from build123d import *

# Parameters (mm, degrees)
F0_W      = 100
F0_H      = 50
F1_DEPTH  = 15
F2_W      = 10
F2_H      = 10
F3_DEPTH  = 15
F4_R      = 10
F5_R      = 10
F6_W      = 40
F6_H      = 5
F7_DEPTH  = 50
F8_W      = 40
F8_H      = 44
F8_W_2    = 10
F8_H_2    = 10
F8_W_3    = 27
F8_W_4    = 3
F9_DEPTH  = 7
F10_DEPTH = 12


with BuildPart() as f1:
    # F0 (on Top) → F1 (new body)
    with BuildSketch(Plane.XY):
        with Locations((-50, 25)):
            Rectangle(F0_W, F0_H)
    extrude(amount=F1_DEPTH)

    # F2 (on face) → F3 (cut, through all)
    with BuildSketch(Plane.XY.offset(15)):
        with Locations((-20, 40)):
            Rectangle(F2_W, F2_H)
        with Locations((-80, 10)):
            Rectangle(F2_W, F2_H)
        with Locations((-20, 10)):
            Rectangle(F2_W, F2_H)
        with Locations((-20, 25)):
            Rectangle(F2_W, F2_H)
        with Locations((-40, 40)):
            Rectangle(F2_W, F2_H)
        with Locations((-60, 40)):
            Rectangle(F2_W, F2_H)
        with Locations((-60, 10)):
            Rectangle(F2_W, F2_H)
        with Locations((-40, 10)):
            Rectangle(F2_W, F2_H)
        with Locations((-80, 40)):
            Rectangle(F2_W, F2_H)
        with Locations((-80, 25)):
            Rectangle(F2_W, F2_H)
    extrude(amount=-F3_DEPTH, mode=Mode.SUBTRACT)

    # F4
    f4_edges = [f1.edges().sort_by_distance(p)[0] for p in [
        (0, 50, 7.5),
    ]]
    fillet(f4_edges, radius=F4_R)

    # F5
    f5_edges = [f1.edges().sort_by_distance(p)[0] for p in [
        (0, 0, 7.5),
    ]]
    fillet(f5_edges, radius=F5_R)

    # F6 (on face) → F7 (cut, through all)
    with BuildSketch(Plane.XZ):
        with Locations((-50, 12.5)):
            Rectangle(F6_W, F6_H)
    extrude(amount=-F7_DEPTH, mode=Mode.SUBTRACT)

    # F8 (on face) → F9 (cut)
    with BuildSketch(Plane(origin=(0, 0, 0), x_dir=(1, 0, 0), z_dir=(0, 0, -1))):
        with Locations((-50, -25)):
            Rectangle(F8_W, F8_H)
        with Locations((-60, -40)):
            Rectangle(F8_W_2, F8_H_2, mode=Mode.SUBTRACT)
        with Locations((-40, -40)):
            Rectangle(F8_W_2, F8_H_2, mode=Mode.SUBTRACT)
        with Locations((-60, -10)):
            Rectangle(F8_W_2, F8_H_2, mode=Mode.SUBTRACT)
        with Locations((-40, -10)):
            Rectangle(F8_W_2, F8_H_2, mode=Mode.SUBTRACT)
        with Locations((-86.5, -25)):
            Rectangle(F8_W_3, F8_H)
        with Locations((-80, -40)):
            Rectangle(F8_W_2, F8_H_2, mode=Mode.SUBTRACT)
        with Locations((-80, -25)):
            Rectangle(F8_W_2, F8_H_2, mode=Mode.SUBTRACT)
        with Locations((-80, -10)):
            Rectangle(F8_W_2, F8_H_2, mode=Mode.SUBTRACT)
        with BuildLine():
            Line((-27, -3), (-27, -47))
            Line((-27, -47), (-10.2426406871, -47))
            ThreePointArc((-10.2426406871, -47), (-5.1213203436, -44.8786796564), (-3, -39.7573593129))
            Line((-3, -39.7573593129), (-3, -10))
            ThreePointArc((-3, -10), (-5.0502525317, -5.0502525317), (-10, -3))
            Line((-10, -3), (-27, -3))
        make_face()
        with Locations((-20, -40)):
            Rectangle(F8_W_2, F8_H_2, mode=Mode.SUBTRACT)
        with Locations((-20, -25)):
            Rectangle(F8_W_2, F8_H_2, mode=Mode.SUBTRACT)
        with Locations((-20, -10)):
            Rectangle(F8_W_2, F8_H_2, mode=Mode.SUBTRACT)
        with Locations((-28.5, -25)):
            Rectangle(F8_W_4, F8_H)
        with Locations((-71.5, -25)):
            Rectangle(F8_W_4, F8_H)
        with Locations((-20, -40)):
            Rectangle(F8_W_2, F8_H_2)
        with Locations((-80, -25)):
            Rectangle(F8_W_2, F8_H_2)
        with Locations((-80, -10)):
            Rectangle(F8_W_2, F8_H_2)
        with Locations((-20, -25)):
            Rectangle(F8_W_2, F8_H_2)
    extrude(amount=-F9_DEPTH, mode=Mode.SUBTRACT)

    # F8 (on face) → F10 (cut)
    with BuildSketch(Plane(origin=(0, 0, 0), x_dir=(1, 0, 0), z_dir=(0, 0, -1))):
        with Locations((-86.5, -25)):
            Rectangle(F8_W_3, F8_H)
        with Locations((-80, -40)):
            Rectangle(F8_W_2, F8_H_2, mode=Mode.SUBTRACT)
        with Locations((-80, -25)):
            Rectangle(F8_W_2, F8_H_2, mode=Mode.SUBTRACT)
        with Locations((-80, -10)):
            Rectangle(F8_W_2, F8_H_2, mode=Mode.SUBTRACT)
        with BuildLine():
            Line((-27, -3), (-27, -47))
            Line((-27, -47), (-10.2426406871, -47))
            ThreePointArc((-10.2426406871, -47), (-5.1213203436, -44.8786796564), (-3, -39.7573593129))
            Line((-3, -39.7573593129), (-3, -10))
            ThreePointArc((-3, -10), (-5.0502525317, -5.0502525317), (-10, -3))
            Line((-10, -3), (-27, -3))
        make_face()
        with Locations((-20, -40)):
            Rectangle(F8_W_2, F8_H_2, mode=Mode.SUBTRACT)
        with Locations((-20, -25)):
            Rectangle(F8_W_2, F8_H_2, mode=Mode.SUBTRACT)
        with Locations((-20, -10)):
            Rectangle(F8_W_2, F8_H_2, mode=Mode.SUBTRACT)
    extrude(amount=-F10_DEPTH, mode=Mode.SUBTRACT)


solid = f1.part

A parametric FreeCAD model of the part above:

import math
import FreeCAD as App
import Part
import Sketcher

V = App.Vector
Q = App.Units.Quantity


def edges_at(feature, points):
    """Names of the edges that pass closest to the given points."""
    edges = feature.Shape.Edges
    near = lambda p: min(range(len(edges)), key=lambda i: edges[i].distToShape(Part.Vertex(*p))[0])
    return sorted({f"Edge{near(p) + 1}" for p in points})


def add_polygon(sketch, points):
    """Adds a closed chain of lines whose ends are joined by coincident constraints."""
    first, n = sketch.GeometryCount, len(points)
    for a, b in zip(points, points[1:] + points[:1]):
        sketch.addGeometry(Part.LineSegment(App.Vector(*a, 0), App.Vector(*b, 0)), False)
    for i in range(n):
        sketch.addConstraint(Sketcher.Constraint("Coincident", first + i, 2, first + (i + 1) % n, 1))

doc = App.newDocument("Part")
body = doc.addObject("PartDesign::Body", "Body")

# Sketch on XY plane
sketch1 = doc.addObject("Sketcher::SketchObject", "Sketch")
body.addObject(sketch1)
sketch1.AttachmentSupport = (doc.XY_Plane, [""])
sketch1.MapMode = "FlatFace"
add_polygon(sketch1, [(-100, 50), (-100, 0), (0, 0), (0, 50)])  # lines 0-3
sketch1.addConstraint(Sketcher.Constraint("Vertical", 0))
sketch1.addConstraint(Sketcher.Constraint("Horizontal", 1))
sketch1.addConstraint(Sketcher.Constraint("Vertical", 2))
sketch1.addConstraint(Sketcher.Constraint("Horizontal", 3))
sketch1.addConstraint(Sketcher.Constraint("Coincident", 1, 2, -1, 1))
sketch1.addConstraint(Sketcher.Constraint("DistanceX", 1, 1, 1, 2, Q("100 mm")))
sketch1.addConstraint(Sketcher.Constraint("DistanceY", 0, 2, 0, 1, Q("50 mm")))
pad1 = doc.addObject("PartDesign::Pad", "Pad")
body.addObject(pad1)
pad1.Profile = sketch1
pad1.Length = 15

# Sketch on XY plane
sketch2 = doc.addObject("Sketcher::SketchObject", "Sketch001")
body.addObject(sketch2)
sketch2.AttachmentSupport = (doc.XY_Plane, [""])
sketch2.MapMode = "FlatFace"
sketch2.AttachmentOffset = App.Placement(V(0, 0, 15), App.Rotation())
add_polygon(sketch2, [(-25, 45), (-25, 35), (-15, 35), (-15, 45)])  # lines 0-3
add_polygon(sketch2, [(-85, 15), (-85, 5), (-75, 5), (-75, 15)])  # lines 4-7
add_polygon(sketch2, [(-25, 15), (-25, 5), (-15, 5), (-15, 15)])  # lines 8-11
add_polygon(sketch2, [(-25, 30), (-25, 20), (-15, 20), (-15, 30)])  # lines 12-15
add_polygon(sketch2, [(-45, 45), (-45, 35), (-35, 35), (-35, 45)])  # lines 16-19
add_polygon(sketch2, [(-65, 45), (-65, 35), (-55, 35), (-55, 45)])  # lines 20-23
add_polygon(sketch2, [(-65, 15), (-65, 5), (-55, 5), (-55, 15)])  # lines 24-27
add_polygon(sketch2, [(-45, 15), (-45, 5), (-35, 5), (-35, 15)])  # lines 28-31
add_polygon(sketch2, [(-85, 45), (-85, 35), (-75, 35), (-75, 45)])  # lines 32-35
add_polygon(sketch2, [(-85, 30), (-85, 20), (-75, 20), (-75, 30)])  # lines 36-39
sketch2.addConstraint(Sketcher.Constraint("Vertical", 0))
sketch2.addConstraint(Sketcher.Constraint("Horizontal", 1))
sketch2.addConstraint(Sketcher.Constraint("Vertical", 2))
sketch2.addConstraint(Sketcher.Constraint("Horizontal", 3))
sketch2.addConstraint(Sketcher.Constraint("Vertical", 4))
sketch2.addConstraint(Sketcher.Constraint("Horizontal", 5))
sketch2.addConstraint(Sketcher.Constraint("Vertical", 6))
sketch2.addConstraint(Sketcher.Constraint("Horizontal", 7))
sketch2.addConstraint(Sketcher.Constraint("Vertical", 8))
sketch2.addConstraint(Sketcher.Constraint("Horizontal", 9))
sketch2.addConstraint(Sketcher.Constraint("Vertical", 10))
sketch2.addConstraint(Sketcher.Constraint("Horizontal", 11))
sketch2.addConstraint(Sketcher.Constraint("Vertical", 12))
sketch2.addConstraint(Sketcher.Constraint("Horizontal", 13))
sketch2.addConstraint(Sketcher.Constraint("Vertical", 14))
sketch2.addConstraint(Sketcher.Constraint("Horizontal", 15))
sketch2.addConstraint(Sketcher.Constraint("Vertical", 16))
sketch2.addConstraint(Sketcher.Constraint("Horizontal", 17))
sketch2.addConstraint(Sketcher.Constraint("Vertical", 18))
sketch2.addConstraint(Sketcher.Constraint("Horizontal", 19))
sketch2.addConstraint(Sketcher.Constraint("Vertical", 20))
sketch2.addConstraint(Sketcher.Constraint("Horizontal", 21))
sketch2.addConstraint(Sketcher.Constraint("Vertical", 22))
sketch2.addConstraint(Sketcher.Constraint("Horizontal", 23))
sketch2.addConstraint(Sketcher.Constraint("Vertical", 24))
sketch2.addConstraint(Sketcher.Constraint("Horizontal", 25))
sketch2.addConstraint(Sketcher.Constraint("Vertical", 26))
sketch2.addConstraint(Sketcher.Constraint("Horizontal", 27))
sketch2.addConstraint(Sketcher.Constraint("Vertical", 28))
sketch2.addConstraint(Sketcher.Constraint("Horizontal", 29))
sketch2.addConstraint(Sketcher.Constraint("Vertical", 30))
sketch2.addConstraint(Sketcher.Constraint("Horizontal", 31))
sketch2.addConstraint(Sketcher.Constraint("Vertical", 32))
sketch2.addConstraint(Sketcher.Constraint("Horizontal", 33))
sketch2.addConstraint(Sketcher.Constraint("Vertical", 34))
sketch2.addConstraint(Sketcher.Constraint("Horizontal", 35))
sketch2.addConstraint(Sketcher.Constraint("Vertical", 36))
sketch2.addConstraint(Sketcher.Constraint("Horizontal", 37))
sketch2.addConstraint(Sketcher.Constraint("Vertical", 38))
sketch2.addConstraint(Sketcher.Constraint("Horizontal", 39))
sketch2.addConstraint(Sketcher.Constraint("Horizontal", 5, 2, 8, 2))
sketch2.addConstraint(Sketcher.Constraint("Horizontal", 7, 2, 10, 2))
sketch2.addConstraint(Sketcher.Constraint("Horizontal", 1, 2, 16, 2))
sketch2.addConstraint(Sketcher.Constraint("Horizontal", 3, 2, 18, 2))
sketch2.addConstraint(Sketcher.Constraint("Horizontal", 17, 2, 20, 2))
sketch2.addConstraint(Sketcher.Constraint("Horizontal", 19, 2, 22, 2))
sketch2.addConstraint(Sketcher.Constraint("Horizontal", 9, 2, 24, 2))
sketch2.addConstraint(Sketcher.Constraint("Horizontal", 11, 2, 26, 2))
sketch2.addConstraint(Sketcher.Constraint("Horizontal", 25, 2, 28, 2))
sketch2.addConstraint(Sketcher.Constraint("Horizontal", 27, 2, 30, 2))
sketch2.addConstraint(Sketcher.Constraint("Horizontal", 21, 2, 32, 2))
sketch2.addConstraint(Sketcher.Constraint("Horizontal", 23, 2, 34, 2))
sketch2.addConstraint(Sketcher.Constraint("Horizontal", 13, 2, 36, 2))
sketch2.addConstraint(Sketcher.Constraint("Horizontal", 15, 2, 38, 2))
sketch2.addConstraint(Sketcher.Constraint("Vertical", 3, 2, 8, 2))
sketch2.addConstraint(Sketcher.Constraint("Vertical", 2, 2, 9, 2))
sketch2.addConstraint(Sketcher.Constraint("Vertical", 11, 2, 12, 2))
sketch2.addConstraint(Sketcher.Constraint("Vertical", 10, 2, 13, 2))
sketch2.addConstraint(Sketcher.Constraint("Vertical", 23, 2, 24, 2))
sketch2.addConstraint(Sketcher.Constraint("Vertical", 22, 2, 25, 2))
sketch2.addConstraint(Sketcher.Constraint("Vertical", 19, 2, 28, 2))
sketch2.addConstraint(Sketcher.Constraint("Vertical", 18, 2, 29, 2))
sketch2.addConstraint(Sketcher.Constraint("Vertical", 7, 2, 32, 2))
sketch2.addConstraint(Sketcher.Constraint("Vertical", 6, 2, 33, 2))
sketch2.addConstraint(Sketcher.Constraint("Vertical", 35, 2, 36, 2))
sketch2.addConstraint(Sketcher.Constraint("Vertical", 34, 2, 37, 2))
sketch2.addConstraint(Sketcher.Constraint("Equal", 3, 5))
sketch2.addConstraint(Sketcher.Constraint("Equal", 15, 17))
sketch2.addConstraint(Sketcher.Constraint("Equal", 19, 21))
sketch2.addConstraint(Sketcher.Constraint("Equal", 39, 0))
sketch2.addConstraint(Sketcher.Constraint("Equal", 2, 4))
sketch2.addConstraint(Sketcher.Constraint("Equal", 10, 12))
sketch2.addConstraint(Sketcher.Constraint("DistanceX", 1, 1, 1, 2, Q("10 mm")))
sketch2.addConstraint(Sketcher.Constraint("DistanceX", 0, 2, -1, 1, Q("25 mm")))
sketch2.addConstraint(Sketcher.Constraint("DistanceY", -1, 1, 0, 2, Q("35 mm")))
sketch2.addConstraint(Sketcher.Constraint("DistanceX", 4, 2, -1, 1, Q("85 mm")))
sketch2.addConstraint(Sketcher.Constraint("DistanceY", -1, 1, 4, 2, Q("5 mm")))
sketch2.addConstraint(Sketcher.Constraint("DistanceY", -1, 1, 12, 2, Q("20 mm")))
sketch2.addConstraint(Sketcher.Constraint("DistanceX", 16, 2, -1, 1, Q("45 mm")))
sketch2.addConstraint(Sketcher.Constraint("DistanceX", 20, 2, -1, 1, Q("65 mm")))
pocket1 = doc.addObject("PartDesign::Pocket", "Pocket")
body.addObject(pocket1)
pocket1.Profile = sketch2
pocket1.Type = "ThroughAll"
doc.recompute()

fillet = doc.addObject("PartDesign::Fillet", "Fillet")
body.addObject(fillet)
fillet.Base = (pocket1, edges_at(pocket1, [(0, 50, 7.5)]))
fillet.Radius = 10
doc.recompute()

fillet2 = doc.addObject("PartDesign::Fillet", "Fillet001")
body.addObject(fillet2)
fillet2.Base = (fillet, edges_at(fillet, [(0, 0, 7.5)]))
fillet2.Radius = 10

# Sketch on XZ plane
sketch3 = doc.addObject("Sketcher::SketchObject", "Sketch002")
body.addObject(sketch3)
sketch3.AttachmentSupport = (doc.XZ_Plane, [""])
sketch3.MapMode = "FlatFace"
add_polygon(sketch3, [(-70, 15), (-70, 10), (-30, 10), (-30, 15)])  # lines 0-3
sketch3.addConstraint(Sketcher.Constraint("Vertical", 0))
sketch3.addConstraint(Sketcher.Constraint("Horizontal", 1))
sketch3.addConstraint(Sketcher.Constraint("Vertical", 2))
sketch3.addConstraint(Sketcher.Constraint("Horizontal", 3))
sketch3.addConstraint(Sketcher.Constraint("DistanceX", 1, 1, 1, 2, Q("40 mm")))
sketch3.addConstraint(Sketcher.Constraint("DistanceY", 0, 2, 0, 1, Q("5 mm")))
sketch3.addConstraint(Sketcher.Constraint("DistanceX", 0, 2, -1, 1, Q("70 mm")))
sketch3.addConstraint(Sketcher.Constraint("DistanceY", -1, 1, 0, 2, Q("10 mm")))
pocket2 = doc.addObject("PartDesign::Pocket", "Pocket001")
body.addObject(pocket2)
pocket2.Profile = sketch3
pocket2.Type = "ThroughAll"

# Sketch on XY plane
sketch4 = doc.addObject("Sketcher::SketchObject", "Sketch003")
body.addObject(sketch4)
sketch4.AttachmentSupport = (doc.XY_Plane, [""])
sketch4.MapMode = "FlatFace"
sketch4.addGeometry(Part.ArcOfCircle(Part.Circle(V(-10.242641, 39.757359, 0), V(0, 0, 1), 7.242641), math.radians(0), math.radians(90)), False)  # 0
sketch4.addGeometry(Part.LineSegment(V(-3, 39.757359, 0), V(-3, 10, 0)), False)  # 1
sketch4.addGeometry(Part.ArcOfCircle(Part.Circle(V(-10, 10, 0), V(0, 0, 1), 7), math.radians(-90), math.radians(0)), False)  # 2
sketch4.addGeometry(Part.LineSegment(V(-10, 3, 0), V(-100, 3, 0)), False)  # 3
sketch4.addGeometry(Part.LineSegment(V(-100, 3, 0), V(-100, 47, 0)), False)  # 4
sketch4.addGeometry(Part.LineSegment(V(-100, 47, 0), V(-10.242641, 47, 0)), False)  # 5
add_polygon(sketch4, [(-55, 45), (-65, 45), (-65, 35), (-55, 35)])  # lines 6-9
add_polygon(sketch4, [(-35, 45), (-45, 45), (-45, 35), (-35, 35)])  # lines 10-13
add_polygon(sketch4, [(-55, 15), (-65, 15), (-65, 5), (-55, 5)])  # lines 14-17
add_polygon(sketch4, [(-35, 15), (-45, 15), (-45, 5), (-35, 5)])  # lines 18-21
add_polygon(sketch4, [(-25, 15), (-25, 5), (-15, 5), (-15, 15)])  # lines 22-25
add_polygon(sketch4, [(-75, 45), (-85, 45), (-85, 35), (-75, 35)])  # lines 26-29
sketch4.addConstraint(Sketcher.Constraint("Tangent", 0, 1, 1, 1))
sketch4.addConstraint(Sketcher.Constraint("Tangent", 1, 2, 2, 2))
sketch4.addConstraint(Sketcher.Constraint("Tangent", 2, 1, 3, 1))
sketch4.addConstraint(Sketcher.Constraint("Coincident", 3, 2, 4, 1))
sketch4.addConstraint(Sketcher.Constraint("Coincident", 4, 2, 5, 1))
sketch4.addConstraint(Sketcher.Constraint("Tangent", 5, 2, 0, 2))
sketch4.addConstraint(Sketcher.Constraint("Vertical", 1))
sketch4.addConstraint(Sketcher.Constraint("Horizontal", 3))
sketch4.addConstraint(Sketcher.Constraint("Vertical", 4))
sketch4.addConstraint(Sketcher.Constraint("Horizontal", 5))
sketch4.addConstraint(Sketcher.Constraint("Horizontal", 6))
sketch4.addConstraint(Sketcher.Constraint("Vertical", 7))
sketch4.addConstraint(Sketcher.Constraint("Horizontal", 8))
sketch4.addConstraint(Sketcher.Constraint("Vertical", 9))
sketch4.addConstraint(Sketcher.Constraint("Horizontal", 10))
sketch4.addConstraint(Sketcher.Constraint("Vertical", 11))
sketch4.addConstraint(Sketcher.Constraint("Horizontal", 12))
sketch4.addConstraint(Sketcher.Constraint("Vertical", 13))
sketch4.addConstraint(Sketcher.Constraint("Horizontal", 14))
sketch4.addConstraint(Sketcher.Constraint("Vertical", 15))
sketch4.addConstraint(Sketcher.Constraint("Horizontal", 16))
sketch4.addConstraint(Sketcher.Constraint("Vertical", 17))
sketch4.addConstraint(Sketcher.Constraint("Horizontal", 18))
sketch4.addConstraint(Sketcher.Constraint("Vertical", 19))
sketch4.addConstraint(Sketcher.Constraint("Horizontal", 20))
sketch4.addConstraint(Sketcher.Constraint("Vertical", 21))
sketch4.addConstraint(Sketcher.Constraint("Vertical", 22))
sketch4.addConstraint(Sketcher.Constraint("Horizontal", 23))
sketch4.addConstraint(Sketcher.Constraint("Vertical", 24))
sketch4.addConstraint(Sketcher.Constraint("Horizontal", 25))
sketch4.addConstraint(Sketcher.Constraint("Horizontal", 26))
sketch4.addConstraint(Sketcher.Constraint("Vertical", 27))
sketch4.addConstraint(Sketcher.Constraint("Horizontal", 28))
sketch4.addConstraint(Sketcher.Constraint("Vertical", 29))
sketch4.addConstraint(Sketcher.Constraint("Horizontal", 9, 2, 10, 2))
sketch4.addConstraint(Sketcher.Constraint("Horizontal", 8, 2, 11, 2))
sketch4.addConstraint(Sketcher.Constraint("Horizontal", 17, 2, 18, 2))
sketch4.addConstraint(Sketcher.Constraint("Horizontal", 16, 2, 19, 2))
sketch4.addConstraint(Sketcher.Constraint("Horizontal", 20, 2, 22, 2))
sketch4.addConstraint(Sketcher.Constraint("Horizontal", 21, 2, 24, 2))
sketch4.addConstraint(Sketcher.Constraint("Horizontal", 13, 2, 26, 2))
sketch4.addConstraint(Sketcher.Constraint("Horizontal", 12, 2, 27, 2))
sketch4.addConstraint(Sketcher.Constraint("Vertical", 7, 2, 14, 2))
sketch4.addConstraint(Sketcher.Constraint("Vertical", 9, 2, 16, 2))
sketch4.addConstraint(Sketcher.Constraint("Vertical", 11, 2, 18, 2))
sketch4.addConstraint(Sketcher.Constraint("Vertical", 13, 2, 20, 2))
sketch4.addConstraint(Sketcher.Constraint("Equal", 8, 10))
sketch4.addConstraint(Sketcher.Constraint("Equal", 20, 23))
sketch4.addConstraint(Sketcher.Constraint("Equal", 25, 26))
sketch4.addConstraint(Sketcher.Constraint("Equal", 28, 7))
sketch4.addConstraint(Sketcher.Constraint("Equal", 13, 15))
sketch4.addConstraint(Sketcher.Constraint("Radius", 2, Q("7 mm")))
sketch4.addConstraint(Sketcher.Constraint("DistanceX", 3, 2, 3, 1, Q("90 mm")))
sketch4.addConstraint(Sketcher.Constraint("DistanceX", 6, 2, 6, 1, Q("10 mm")))
sketch4.addConstraint(Sketcher.Constraint("DistanceY", 4, 1, 4, 2, Q("44 mm")))
sketch4.addConstraint(Sketcher.Constraint("DistanceX", 2, 3, -1, 1, Q("10 mm")))
sketch4.addConstraint(Sketcher.Constraint("DistanceY", -1, 1, 2, 3, Q("10 mm")))
sketch4.addConstraint(Sketcher.Constraint("DistanceX", 6, 2, -1, 1, Q("65 mm")))
sketch4.addConstraint(Sketcher.Constraint("DistanceY", -1, 1, 6, 2, Q("45 mm")))
sketch4.addConstraint(Sketcher.Constraint("DistanceX", 10, 2, -1, 1, Q("45 mm")))
sketch4.addConstraint(Sketcher.Constraint("DistanceY", -1, 1, 14, 2, Q("15 mm")))
sketch4.addConstraint(Sketcher.Constraint("DistanceX", 22, 2, -1, 1, Q("25 mm")))
sketch4.addConstraint(Sketcher.Constraint("DistanceX", 26, 2, -1, 1, Q("85 mm")))
sketch4.addConstraint(Sketcher.Constraint("Radius", 0, Q("7.242641 mm")))
pocket3 = doc.addObject("PartDesign::Pocket", "Pocket002")
body.addObject(pocket3)
pocket3.Profile = sketch4
pocket3.Length = 7
pocket3.Reversed = True

# Sketch on XY plane
sketch5 = doc.addObject("Sketcher::SketchObject", "Sketch004")
body.addObject(sketch5)
sketch5.AttachmentSupport = (doc.XY_Plane, [""])
sketch5.MapMode = "FlatFace"
add_polygon(sketch5, [(-100, 3), (-100, 47), (-73, 47), (-73, 3)])  # lines 0-3
add_polygon(sketch5, [(-75, 45), (-85, 45), (-85, 35), (-75, 35)])  # lines 4-7
add_polygon(sketch5, [(-75, 30), (-85, 30), (-85, 20), (-75, 20)])  # lines 8-11
add_polygon(sketch5, [(-75, 15), (-85, 15), (-85, 5), (-75, 5)])  # lines 12-15
sketch5.addGeometry(Part.LineSegment(V(-27, 3, 0), V(-27, 47, 0)), False)  # 16
sketch5.addGeometry(Part.LineSegment(V(-27, 47, 0), V(-10.242641, 47, 0)), False)  # 17
sketch5.addGeometry(Part.ArcOfCircle(Part.Circle(V(-10.242641, 39.757359, 0), V(0, 0, 1), 7.242641), math.radians(0), math.radians(90)), False)  # 18
sketch5.addGeometry(Part.LineSegment(V(-3, 39.757359, 0), V(-3, 10, 0)), False)  # 19
sketch5.addGeometry(Part.ArcOfCircle(Part.Circle(V(-10, 10, 0), V(0, 0, 1), 7), math.radians(-90), math.radians(0)), False)  # 20
sketch5.addGeometry(Part.LineSegment(V(-10, 3, 0), V(-27, 3, 0)), False)  # 21
add_polygon(sketch5, [(-15, 45), (-25, 45), (-25, 35), (-15, 35)])  # lines 22-25
add_polygon(sketch5, [(-15, 30), (-25, 30), (-25, 20), (-15, 20)])  # lines 26-29
add_polygon(sketch5, [(-15, 15), (-25, 15), (-25, 5), (-15, 5)])  # lines 30-33
sketch5.addConstraint(Sketcher.Constraint("Coincident", 16, 2, 17, 1))
sketch5.addConstraint(Sketcher.Constraint("Tangent", 17, 2, 18, 2))
sketch5.addConstraint(Sketcher.Constraint("Tangent", 18, 1, 19, 1))
sketch5.addConstraint(Sketcher.Constraint("Tangent", 19, 2, 20, 2))
sketch5.addConstraint(Sketcher.Constraint("Tangent", 20, 1, 21, 1))
sketch5.addConstraint(Sketcher.Constraint("Coincident", 21, 2, 16, 1))
sketch5.addConstraint(Sketcher.Constraint("Vertical", 0))
sketch5.addConstraint(Sketcher.Constraint("Horizontal", 1))
sketch5.addConstraint(Sketcher.Constraint("Vertical", 2))
sketch5.addConstraint(Sketcher.Constraint("Horizontal", 3))
sketch5.addConstraint(Sketcher.Constraint("Horizontal", 4))
sketch5.addConstraint(Sketcher.Constraint("Vertical", 5))
sketch5.addConstraint(Sketcher.Constraint("Horizontal", 6))
sketch5.addConstraint(Sketcher.Constraint("Vertical", 7))
sketch5.addConstraint(Sketcher.Constraint("Horizontal", 8))
sketch5.addConstraint(Sketcher.Constraint("Vertical", 9))
sketch5.addConstraint(Sketcher.Constraint("Horizontal", 10))
sketch5.addConstraint(Sketcher.Constraint("Vertical", 11))
sketch5.addConstraint(Sketcher.Constraint("Horizontal", 12))
sketch5.addConstraint(Sketcher.Constraint("Vertical", 13))
sketch5.addConstraint(Sketcher.Constraint("Horizontal", 14))
sketch5.addConstraint(Sketcher.Constraint("Vertical", 15))
sketch5.addConstraint(Sketcher.Constraint("Vertical", 16))
sketch5.addConstraint(Sketcher.Constraint("Horizontal", 17))
sketch5.addConstraint(Sketcher.Constraint("Vertical", 19))
sketch5.addConstraint(Sketcher.Constraint("Horizontal", 21))
sketch5.addConstraint(Sketcher.Constraint("Horizontal", 22))
sketch5.addConstraint(Sketcher.Constraint("Vertical", 23))
sketch5.addConstraint(Sketcher.Constraint("Horizontal", 24))
sketch5.addConstraint(Sketcher.Constraint("Vertical", 25))
sketch5.addConstraint(Sketcher.Constraint("Horizontal", 26))
sketch5.addConstraint(Sketcher.Constraint("Vertical", 27))
sketch5.addConstraint(Sketcher.Constraint("Horizontal", 28))
sketch5.addConstraint(Sketcher.Constraint("Vertical", 29))
sketch5.addConstraint(Sketcher.Constraint("Horizontal", 30))
sketch5.addConstraint(Sketcher.Constraint("Vertical", 31))
sketch5.addConstraint(Sketcher.Constraint("Horizontal", 32))
sketch5.addConstraint(Sketcher.Constraint("Vertical", 33))
sketch5.addConstraint(Sketcher.Constraint("Horizontal", 1, 2, 16, 2))
sketch5.addConstraint(Sketcher.Constraint("Horizontal", 3, 2, 20, 1))
sketch5.addConstraint(Sketcher.Constraint("Horizontal", 7, 2, 22, 2))
sketch5.addConstraint(Sketcher.Constraint("Horizontal", 6, 2, 23, 2))
sketch5.addConstraint(Sketcher.Constraint("Horizontal", 11, 2, 26, 2))
sketch5.addConstraint(Sketcher.Constraint("Horizontal", 10, 2, 27, 2))
sketch5.addConstraint(Sketcher.Constraint("Horizontal", 15, 2, 30, 2))
sketch5.addConstraint(Sketcher.Constraint("Horizontal", 14, 2, 31, 2))
sketch5.addConstraint(Sketcher.Constraint("Vertical", 5, 2, 8, 2))
sketch5.addConstraint(Sketcher.Constraint("Vertical", 7, 2, 10, 2))
sketch5.addConstraint(Sketcher.Constraint("Vertical", 9, 2, 12, 2))
sketch5.addConstraint(Sketcher.Constraint("Vertical", 11, 2, 14, 2))
sketch5.addConstraint(Sketcher.Constraint("Vertical", 23, 2, 26, 2))
sketch5.addConstraint(Sketcher.Constraint("Vertical", 25, 2, 28, 2))
sketch5.addConstraint(Sketcher.Constraint("Vertical", 27, 2, 30, 2))
sketch5.addConstraint(Sketcher.Constraint("Vertical", 29, 2, 32, 2))
sketch5.addConstraint(Sketcher.Constraint("Equal", 14, 22))
sketch5.addConstraint(Sketcher.Constraint("Equal", 32, 5))
sketch5.addConstraint(Sketcher.Constraint("Equal", 7, 9))
sketch5.addConstraint(Sketcher.Constraint("Equal", 11, 13))
sketch5.addConstraint(Sketcher.Constraint("Radius", 20, Q("7 mm")))
sketch5.addConstraint(Sketcher.Constraint("DistanceX", 1, 1, 1, 2, Q("27 mm")))
sketch5.addConstraint(Sketcher.Constraint("DistanceX", 4, 2, 4, 1, Q("10 mm")))
sketch5.addConstraint(Sketcher.Constraint("DistanceX", 21, 2, 21, 1, Q("17 mm")))
sketch5.addConstraint(Sketcher.Constraint("DistanceY", 0, 1, 0, 2, Q("44 mm")))
sketch5.addConstraint(Sketcher.Constraint("DistanceX", 20, 3, -1, 1, Q("10 mm")))
sketch5.addConstraint(Sketcher.Constraint("DistanceY", -1, 1, 20, 3, Q("10 mm")))
sketch5.addConstraint(Sketcher.Constraint("DistanceX", 0, 2, -1, 1, Q("100 mm")))
sketch5.addConstraint(Sketcher.Constraint("DistanceX", 4, 2, -1, 1, Q("85 mm")))
sketch5.addConstraint(Sketcher.Constraint("DistanceY", -1, 1, 4, 2, Q("45 mm")))
sketch5.addConstraint(Sketcher.Constraint("DistanceY", -1, 1, 8, 2, Q("30 mm")))
sketch5.addConstraint(Sketcher.Constraint("DistanceY", -1, 1, 12, 2, Q("15 mm")))
sketch5.addConstraint(Sketcher.Constraint("DistanceX", 22, 2, -1, 1, Q("25 mm")))
sketch5.addConstraint(Sketcher.Constraint("Radius", 18, Q("7.242641 mm")))
pocket4 = doc.addObject("PartDesign::Pocket", "Pocket003")
body.addObject(pocket4)
pocket4.Profile = sketch5
pocket4.Length = 12
pocket4.Reversed = True

doc.recompute()
